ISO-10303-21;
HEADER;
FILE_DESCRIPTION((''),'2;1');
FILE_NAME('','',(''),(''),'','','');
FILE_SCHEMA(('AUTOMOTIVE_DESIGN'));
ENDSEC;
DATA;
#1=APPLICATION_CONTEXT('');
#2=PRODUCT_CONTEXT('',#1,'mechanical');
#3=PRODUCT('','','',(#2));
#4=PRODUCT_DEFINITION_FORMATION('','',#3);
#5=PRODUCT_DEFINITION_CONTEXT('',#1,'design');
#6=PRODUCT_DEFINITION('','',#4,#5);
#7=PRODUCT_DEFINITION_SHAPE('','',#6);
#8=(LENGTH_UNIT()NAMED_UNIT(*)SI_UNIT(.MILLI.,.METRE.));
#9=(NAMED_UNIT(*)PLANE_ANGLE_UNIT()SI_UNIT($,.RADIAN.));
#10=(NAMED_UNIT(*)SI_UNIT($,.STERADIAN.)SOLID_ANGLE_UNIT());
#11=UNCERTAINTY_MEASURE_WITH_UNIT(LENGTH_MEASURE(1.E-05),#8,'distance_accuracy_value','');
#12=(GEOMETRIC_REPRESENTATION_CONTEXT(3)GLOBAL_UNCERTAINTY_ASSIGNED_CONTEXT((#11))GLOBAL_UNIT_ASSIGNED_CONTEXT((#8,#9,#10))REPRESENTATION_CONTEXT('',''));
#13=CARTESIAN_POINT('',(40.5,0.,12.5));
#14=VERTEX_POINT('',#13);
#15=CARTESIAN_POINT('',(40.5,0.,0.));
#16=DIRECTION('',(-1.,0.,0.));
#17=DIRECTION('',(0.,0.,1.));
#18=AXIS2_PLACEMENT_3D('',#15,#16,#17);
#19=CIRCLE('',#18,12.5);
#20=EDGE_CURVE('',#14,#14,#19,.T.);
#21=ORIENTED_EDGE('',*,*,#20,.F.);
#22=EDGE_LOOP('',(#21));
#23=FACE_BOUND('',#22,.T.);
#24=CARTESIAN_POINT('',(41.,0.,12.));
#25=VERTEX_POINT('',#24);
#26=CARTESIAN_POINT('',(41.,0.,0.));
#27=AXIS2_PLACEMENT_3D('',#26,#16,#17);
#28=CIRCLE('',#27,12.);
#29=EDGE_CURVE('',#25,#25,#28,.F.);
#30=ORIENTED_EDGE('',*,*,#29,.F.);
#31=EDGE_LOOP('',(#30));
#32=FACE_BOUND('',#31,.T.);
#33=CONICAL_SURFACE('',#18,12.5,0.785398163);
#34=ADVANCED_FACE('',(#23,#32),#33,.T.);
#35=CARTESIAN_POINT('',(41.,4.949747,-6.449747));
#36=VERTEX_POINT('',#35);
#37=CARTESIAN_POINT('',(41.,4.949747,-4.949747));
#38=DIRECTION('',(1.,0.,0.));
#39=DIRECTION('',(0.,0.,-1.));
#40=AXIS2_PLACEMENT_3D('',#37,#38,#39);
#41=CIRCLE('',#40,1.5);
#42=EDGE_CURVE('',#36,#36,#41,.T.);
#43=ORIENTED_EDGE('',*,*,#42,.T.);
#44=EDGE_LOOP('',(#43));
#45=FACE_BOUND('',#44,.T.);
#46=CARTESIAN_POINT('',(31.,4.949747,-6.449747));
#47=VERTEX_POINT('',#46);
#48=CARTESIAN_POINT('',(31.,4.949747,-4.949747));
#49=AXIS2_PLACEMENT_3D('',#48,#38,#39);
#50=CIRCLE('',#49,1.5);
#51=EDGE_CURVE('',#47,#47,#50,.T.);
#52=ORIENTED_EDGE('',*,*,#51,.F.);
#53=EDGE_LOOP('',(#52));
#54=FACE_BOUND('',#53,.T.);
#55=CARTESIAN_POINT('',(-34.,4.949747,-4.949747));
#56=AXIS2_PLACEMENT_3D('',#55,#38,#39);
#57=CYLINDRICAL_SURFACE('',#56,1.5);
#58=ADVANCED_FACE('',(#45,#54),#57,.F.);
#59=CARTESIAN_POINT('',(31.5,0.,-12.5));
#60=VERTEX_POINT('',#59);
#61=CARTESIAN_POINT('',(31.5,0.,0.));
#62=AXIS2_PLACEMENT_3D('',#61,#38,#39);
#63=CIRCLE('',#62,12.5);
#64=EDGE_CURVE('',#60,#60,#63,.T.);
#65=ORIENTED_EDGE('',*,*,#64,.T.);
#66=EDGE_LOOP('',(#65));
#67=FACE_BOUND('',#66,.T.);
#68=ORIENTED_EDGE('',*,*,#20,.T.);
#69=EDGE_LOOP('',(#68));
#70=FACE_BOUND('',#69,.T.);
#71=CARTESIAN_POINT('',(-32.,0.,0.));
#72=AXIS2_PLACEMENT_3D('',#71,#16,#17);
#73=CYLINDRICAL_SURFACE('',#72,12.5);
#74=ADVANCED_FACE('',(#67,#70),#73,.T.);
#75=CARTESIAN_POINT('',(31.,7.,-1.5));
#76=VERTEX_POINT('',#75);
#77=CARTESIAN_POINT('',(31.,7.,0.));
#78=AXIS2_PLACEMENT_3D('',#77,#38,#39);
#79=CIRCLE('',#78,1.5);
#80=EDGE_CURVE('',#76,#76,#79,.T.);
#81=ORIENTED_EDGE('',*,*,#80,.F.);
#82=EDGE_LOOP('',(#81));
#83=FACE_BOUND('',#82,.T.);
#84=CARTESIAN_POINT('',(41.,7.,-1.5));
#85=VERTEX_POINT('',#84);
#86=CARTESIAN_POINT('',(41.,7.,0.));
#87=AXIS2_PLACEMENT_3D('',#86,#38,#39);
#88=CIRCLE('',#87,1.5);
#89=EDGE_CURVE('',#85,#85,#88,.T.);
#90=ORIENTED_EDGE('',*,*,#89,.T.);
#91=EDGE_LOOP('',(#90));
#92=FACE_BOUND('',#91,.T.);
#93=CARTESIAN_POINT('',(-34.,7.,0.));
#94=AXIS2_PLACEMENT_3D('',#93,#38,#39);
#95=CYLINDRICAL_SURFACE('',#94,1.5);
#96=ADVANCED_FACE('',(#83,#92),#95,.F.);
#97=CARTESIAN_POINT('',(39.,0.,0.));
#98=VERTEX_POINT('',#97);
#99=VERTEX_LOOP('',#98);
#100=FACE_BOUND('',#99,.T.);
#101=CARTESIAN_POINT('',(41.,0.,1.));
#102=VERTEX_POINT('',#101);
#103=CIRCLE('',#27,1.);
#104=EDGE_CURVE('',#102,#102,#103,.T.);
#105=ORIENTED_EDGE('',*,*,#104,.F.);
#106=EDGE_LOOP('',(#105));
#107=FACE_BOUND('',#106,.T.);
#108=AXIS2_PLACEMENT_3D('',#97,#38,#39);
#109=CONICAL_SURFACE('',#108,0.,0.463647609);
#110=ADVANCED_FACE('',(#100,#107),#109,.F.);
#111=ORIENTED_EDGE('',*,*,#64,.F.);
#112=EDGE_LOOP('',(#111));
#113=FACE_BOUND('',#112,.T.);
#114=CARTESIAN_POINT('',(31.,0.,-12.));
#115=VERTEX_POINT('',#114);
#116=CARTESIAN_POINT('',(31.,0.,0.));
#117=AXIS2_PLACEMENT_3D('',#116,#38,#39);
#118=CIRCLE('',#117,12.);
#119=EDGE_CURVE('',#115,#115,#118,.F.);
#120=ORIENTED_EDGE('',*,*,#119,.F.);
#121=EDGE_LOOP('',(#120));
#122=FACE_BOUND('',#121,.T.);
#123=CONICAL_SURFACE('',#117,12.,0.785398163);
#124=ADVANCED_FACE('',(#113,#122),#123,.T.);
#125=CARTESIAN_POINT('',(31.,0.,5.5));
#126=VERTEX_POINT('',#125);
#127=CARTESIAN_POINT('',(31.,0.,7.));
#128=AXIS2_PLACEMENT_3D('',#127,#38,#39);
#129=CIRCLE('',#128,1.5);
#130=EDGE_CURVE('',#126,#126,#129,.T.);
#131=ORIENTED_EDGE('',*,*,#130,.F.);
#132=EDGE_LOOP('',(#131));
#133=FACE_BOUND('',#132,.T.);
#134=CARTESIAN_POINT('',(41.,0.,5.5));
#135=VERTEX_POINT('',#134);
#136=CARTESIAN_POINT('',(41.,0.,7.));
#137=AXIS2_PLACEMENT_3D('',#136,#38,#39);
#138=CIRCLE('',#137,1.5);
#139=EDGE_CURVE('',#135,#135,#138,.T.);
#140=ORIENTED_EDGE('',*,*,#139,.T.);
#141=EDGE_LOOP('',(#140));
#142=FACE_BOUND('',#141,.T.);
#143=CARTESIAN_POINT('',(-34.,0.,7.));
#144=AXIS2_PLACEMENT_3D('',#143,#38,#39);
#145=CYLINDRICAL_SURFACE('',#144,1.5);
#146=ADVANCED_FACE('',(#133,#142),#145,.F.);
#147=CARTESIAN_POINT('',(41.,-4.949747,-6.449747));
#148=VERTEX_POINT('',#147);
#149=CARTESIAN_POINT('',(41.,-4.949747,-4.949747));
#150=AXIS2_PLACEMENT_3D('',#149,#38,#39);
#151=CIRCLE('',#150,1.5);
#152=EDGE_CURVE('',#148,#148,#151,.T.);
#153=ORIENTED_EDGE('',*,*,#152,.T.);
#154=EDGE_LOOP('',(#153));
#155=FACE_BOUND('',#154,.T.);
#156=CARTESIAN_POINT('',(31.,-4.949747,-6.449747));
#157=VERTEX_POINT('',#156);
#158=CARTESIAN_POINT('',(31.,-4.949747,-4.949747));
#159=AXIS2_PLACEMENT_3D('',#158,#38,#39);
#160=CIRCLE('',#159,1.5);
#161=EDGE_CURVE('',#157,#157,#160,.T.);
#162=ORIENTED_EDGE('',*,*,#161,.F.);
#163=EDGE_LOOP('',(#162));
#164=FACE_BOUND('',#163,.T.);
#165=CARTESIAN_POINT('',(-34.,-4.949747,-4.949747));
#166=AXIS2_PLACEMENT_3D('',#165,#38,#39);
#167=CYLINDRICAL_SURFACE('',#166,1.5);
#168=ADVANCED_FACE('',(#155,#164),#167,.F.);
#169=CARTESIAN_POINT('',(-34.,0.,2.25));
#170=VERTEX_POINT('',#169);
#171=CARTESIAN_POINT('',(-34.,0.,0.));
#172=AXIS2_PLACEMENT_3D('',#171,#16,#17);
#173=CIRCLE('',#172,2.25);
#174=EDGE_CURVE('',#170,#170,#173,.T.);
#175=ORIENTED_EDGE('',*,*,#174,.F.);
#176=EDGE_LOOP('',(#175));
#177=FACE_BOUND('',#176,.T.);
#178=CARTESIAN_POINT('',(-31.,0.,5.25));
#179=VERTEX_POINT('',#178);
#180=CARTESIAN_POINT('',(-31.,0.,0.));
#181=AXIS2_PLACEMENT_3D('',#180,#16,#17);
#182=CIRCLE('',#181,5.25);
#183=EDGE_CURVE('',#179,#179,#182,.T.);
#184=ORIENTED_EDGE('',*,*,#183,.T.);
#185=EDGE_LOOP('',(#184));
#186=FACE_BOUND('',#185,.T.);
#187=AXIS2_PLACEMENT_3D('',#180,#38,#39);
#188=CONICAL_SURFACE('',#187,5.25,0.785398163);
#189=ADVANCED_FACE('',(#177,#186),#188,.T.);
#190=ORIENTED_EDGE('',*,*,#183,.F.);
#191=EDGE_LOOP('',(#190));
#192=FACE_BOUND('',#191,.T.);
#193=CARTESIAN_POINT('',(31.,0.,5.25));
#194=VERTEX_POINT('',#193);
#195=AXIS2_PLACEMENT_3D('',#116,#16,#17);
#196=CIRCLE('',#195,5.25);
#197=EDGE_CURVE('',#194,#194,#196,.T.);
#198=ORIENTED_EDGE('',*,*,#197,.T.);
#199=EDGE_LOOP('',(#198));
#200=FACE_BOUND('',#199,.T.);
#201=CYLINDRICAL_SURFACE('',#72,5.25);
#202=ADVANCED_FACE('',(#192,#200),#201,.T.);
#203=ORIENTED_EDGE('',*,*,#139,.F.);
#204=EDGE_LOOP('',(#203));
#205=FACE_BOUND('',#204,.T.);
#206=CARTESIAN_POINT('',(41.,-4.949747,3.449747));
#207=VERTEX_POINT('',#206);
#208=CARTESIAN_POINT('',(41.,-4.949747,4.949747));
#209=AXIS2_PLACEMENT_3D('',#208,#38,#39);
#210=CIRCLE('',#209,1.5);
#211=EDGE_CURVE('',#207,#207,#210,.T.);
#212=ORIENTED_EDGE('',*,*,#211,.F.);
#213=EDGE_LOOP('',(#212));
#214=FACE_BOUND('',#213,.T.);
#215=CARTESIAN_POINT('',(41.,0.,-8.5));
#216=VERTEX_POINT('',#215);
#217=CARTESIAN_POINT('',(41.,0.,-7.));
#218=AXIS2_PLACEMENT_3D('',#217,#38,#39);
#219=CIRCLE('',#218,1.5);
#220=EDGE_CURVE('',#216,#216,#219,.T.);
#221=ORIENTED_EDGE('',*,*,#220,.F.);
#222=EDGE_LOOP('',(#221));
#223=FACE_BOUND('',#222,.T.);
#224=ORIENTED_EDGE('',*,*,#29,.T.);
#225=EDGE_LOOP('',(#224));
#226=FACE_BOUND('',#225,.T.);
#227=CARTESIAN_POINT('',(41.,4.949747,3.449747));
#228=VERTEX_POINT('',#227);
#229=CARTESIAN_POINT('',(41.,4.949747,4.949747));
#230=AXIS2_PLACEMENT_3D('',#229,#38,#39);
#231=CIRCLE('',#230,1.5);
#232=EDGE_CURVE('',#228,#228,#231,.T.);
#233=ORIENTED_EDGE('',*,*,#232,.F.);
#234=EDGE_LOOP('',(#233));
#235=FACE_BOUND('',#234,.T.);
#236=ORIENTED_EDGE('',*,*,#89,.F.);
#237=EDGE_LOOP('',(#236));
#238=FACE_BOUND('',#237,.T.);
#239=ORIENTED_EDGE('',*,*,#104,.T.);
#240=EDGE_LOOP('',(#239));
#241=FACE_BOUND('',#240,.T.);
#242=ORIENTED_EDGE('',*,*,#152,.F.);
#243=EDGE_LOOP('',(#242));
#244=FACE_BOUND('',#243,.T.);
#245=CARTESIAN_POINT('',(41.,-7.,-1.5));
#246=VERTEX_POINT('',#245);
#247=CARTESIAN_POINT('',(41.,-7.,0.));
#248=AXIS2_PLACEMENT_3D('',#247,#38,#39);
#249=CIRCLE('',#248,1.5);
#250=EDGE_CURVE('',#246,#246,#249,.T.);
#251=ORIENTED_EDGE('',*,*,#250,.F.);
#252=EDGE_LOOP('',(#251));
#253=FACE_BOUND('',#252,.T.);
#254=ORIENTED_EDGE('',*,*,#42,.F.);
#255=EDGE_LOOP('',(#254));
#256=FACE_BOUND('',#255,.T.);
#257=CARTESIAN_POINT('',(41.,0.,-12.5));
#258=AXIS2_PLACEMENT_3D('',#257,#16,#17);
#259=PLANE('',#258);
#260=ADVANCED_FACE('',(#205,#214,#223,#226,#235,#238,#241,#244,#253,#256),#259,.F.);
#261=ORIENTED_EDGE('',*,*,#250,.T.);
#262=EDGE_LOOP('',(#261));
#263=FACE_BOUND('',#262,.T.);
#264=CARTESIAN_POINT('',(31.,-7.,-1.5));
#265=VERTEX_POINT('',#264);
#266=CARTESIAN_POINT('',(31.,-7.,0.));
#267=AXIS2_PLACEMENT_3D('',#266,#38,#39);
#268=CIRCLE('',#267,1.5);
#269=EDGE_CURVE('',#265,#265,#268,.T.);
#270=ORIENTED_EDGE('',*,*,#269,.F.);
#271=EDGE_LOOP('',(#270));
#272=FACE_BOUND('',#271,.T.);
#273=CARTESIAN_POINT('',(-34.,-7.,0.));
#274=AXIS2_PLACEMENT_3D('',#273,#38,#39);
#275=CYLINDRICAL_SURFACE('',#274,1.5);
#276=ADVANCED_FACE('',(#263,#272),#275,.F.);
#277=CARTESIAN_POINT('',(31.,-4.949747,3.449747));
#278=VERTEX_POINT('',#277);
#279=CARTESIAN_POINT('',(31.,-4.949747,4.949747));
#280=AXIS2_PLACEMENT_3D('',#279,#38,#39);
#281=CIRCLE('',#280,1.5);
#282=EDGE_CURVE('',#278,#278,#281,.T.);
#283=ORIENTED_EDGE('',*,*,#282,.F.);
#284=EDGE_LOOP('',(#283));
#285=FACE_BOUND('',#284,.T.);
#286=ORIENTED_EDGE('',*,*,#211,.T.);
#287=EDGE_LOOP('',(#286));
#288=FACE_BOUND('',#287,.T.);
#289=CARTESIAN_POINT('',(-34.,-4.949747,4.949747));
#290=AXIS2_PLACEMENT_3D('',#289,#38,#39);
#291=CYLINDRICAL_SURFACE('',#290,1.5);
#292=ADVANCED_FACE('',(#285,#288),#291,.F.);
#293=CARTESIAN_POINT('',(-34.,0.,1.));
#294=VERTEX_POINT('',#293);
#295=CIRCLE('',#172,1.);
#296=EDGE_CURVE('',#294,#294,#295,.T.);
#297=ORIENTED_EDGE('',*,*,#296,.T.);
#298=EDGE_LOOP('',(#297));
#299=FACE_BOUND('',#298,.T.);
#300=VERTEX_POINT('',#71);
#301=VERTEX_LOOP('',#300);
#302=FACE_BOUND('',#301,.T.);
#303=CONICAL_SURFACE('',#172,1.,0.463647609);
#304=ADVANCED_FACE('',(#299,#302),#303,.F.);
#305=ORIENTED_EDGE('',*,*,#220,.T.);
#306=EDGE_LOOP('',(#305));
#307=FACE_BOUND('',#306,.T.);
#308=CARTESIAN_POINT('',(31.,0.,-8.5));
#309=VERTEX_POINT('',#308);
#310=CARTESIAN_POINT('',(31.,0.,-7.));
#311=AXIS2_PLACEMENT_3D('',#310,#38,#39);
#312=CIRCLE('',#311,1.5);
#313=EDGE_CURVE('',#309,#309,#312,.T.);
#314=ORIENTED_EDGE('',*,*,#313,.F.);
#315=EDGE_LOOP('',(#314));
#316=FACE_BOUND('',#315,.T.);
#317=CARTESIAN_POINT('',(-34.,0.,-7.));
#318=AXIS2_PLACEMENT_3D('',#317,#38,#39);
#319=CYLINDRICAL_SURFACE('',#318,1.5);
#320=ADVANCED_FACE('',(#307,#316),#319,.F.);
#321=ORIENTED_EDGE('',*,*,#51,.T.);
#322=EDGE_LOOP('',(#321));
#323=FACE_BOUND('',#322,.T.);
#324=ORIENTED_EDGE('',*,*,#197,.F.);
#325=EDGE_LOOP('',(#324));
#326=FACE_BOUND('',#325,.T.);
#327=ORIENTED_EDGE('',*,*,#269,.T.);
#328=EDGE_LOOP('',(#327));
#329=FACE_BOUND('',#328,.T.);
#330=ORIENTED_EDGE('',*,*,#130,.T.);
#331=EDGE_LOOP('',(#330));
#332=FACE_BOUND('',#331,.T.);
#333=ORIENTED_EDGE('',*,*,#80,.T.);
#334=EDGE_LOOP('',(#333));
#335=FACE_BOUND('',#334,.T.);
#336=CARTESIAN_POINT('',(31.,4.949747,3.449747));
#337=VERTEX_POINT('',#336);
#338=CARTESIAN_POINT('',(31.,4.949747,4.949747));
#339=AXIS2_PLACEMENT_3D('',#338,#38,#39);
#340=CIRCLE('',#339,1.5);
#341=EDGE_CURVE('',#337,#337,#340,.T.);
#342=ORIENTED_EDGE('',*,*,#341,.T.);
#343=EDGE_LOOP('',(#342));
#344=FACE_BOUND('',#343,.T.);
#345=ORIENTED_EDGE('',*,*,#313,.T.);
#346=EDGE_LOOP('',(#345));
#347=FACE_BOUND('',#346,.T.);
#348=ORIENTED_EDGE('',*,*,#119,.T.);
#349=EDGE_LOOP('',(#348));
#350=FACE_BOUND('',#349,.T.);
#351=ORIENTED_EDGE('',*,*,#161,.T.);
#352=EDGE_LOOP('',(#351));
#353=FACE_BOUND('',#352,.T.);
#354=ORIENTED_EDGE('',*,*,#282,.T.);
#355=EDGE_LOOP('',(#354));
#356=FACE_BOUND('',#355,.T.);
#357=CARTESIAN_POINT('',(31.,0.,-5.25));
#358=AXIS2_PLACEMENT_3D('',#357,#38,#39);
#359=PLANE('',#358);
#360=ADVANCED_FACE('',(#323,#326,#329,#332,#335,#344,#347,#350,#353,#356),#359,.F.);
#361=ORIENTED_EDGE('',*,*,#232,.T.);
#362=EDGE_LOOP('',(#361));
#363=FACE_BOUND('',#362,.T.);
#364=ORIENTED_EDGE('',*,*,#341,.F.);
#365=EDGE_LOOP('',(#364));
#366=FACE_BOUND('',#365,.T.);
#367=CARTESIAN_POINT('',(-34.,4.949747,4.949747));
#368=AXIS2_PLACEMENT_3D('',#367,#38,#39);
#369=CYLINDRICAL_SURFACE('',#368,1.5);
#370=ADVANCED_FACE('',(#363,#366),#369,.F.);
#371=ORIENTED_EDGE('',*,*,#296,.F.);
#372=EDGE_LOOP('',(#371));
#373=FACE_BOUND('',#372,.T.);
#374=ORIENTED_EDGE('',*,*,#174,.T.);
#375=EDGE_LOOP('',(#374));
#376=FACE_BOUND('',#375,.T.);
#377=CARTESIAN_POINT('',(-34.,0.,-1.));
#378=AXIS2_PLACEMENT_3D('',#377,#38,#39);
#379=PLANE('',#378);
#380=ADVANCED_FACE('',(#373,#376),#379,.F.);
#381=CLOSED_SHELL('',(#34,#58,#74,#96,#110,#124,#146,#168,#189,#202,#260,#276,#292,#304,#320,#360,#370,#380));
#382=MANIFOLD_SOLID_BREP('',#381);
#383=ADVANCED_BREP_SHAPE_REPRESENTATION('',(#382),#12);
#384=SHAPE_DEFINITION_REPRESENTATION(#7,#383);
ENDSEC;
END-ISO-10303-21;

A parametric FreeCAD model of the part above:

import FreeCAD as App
import Part
import Sketcher
Q = App.Units.Quantity


def edges_at(feature, points):
    """Names of the edges that pass closest to the given points."""
    edges = feature.Shape.Edges
    near = lambda p: min(range(len(edges)), key=lambda i: edges[i].distToShape(Part.Vertex(*p))[0])
    return sorted({f"Edge{near(p) + 1}" for p in points})


def add_polygon(sketch, points):
    """Adds a closed chain of lines whose ends are joined by coincident constraints."""
    first, n = sketch.GeometryCount, len(points)
    for a, b in zip(points, points[1:] + points[:1]):
        sketch.addGeometry(Part.LineSegment(App.Vector(*a, 0), App.Vector(*b, 0)), False)
    for i in range(n):
        sketch.addConstraint(Sketcher.Constraint("Coincident", first + i, 2, first + (i + 1) % n, 1))

doc = App.newDocument("Part")
body = doc.addObject("PartDesign::Body", "Body")

sketch1 = doc.addObject("Sketcher::SketchObject", "Sketch")
body.addObject(sketch1)
sketch1.AttachmentSupport = (doc.XZ_Plane, [""])
sketch1.MapMode = "FlatFace"
add_polygon(sketch1, [(-34, -2.2), (-34, -1), (-32, 0), (39, 0), (41, -1), (41, -12.5), (31, -12.5), (31, -5.2), (-31, -5.2)])
sketch1.addConstraint([
    Sketcher.Constraint("Vertical", 0),
    Sketcher.Constraint("Horizontal", 2),
    Sketcher.Constraint("Vertical", 4),
    Sketcher.Constraint("Horizontal", 5),
    Sketcher.Constraint("Vertical", 6),
    Sketcher.Constraint("Horizontal", 7),
    Sketcher.Constraint("PointOnObject", 1, 2, -1),
    Sketcher.Constraint("Horizontal", 0, 2, 3, 2),
    Sketcher.Constraint("Equal", 1, 3),
    Sketcher.Constraint("DistanceX", 2, 1, 2, 2, 71.0),
    Sketcher.Constraint("DistanceX", 5, 2, 5, 1, 10.0),
    Sketcher.Constraint("DistanceX", 7, 2, 7, 1, 62.0),
    Sketcher.Constraint("Angle", 8, Q("135 deg")),
    Sketcher.Constraint("DistanceY", 4, 2, 4, 1, 11.5),
    Sketcher.Constraint("DistanceX", 0, 2, -1, 1, 34.0),
    Sketcher.Constraint("DistanceY", 0, 2, -1, 1, 1.0),
    Sketcher.Constraint("DistanceX", 1, 2, -1, 1, 32.0),
    Sketcher.Constraint("DistanceY", 0, 1, 0, 2, 1.25),
])
revolution = doc.addObject("PartDesign::Revolution", "Revolution")
body.addObject(revolution)
revolution.Profile = sketch1
revolution.ReferenceAxis = (sketch1, ["H_Axis"])
revolution.Angle = 360
doc.recompute()

chamfer = doc.addObject("PartDesign::Chamfer", "Chamfer")
body.addObject(chamfer)
chamfer.Base = (revolution, edges_at(revolution, [(41, 0, 12.5), (31, 0, 12.5)]))
chamfer.Size = 0.5

sketch2 = doc.addObject("Sketcher::SketchObject", "Sketch001")
body.addObject(sketch2)
sketch2.AttachmentSupport = (doc.YZ_Plane, [""])
sketch2.MapMode = "FlatFace"
sketch2.AttachmentOffset = App.Placement(App.Vector(0, 0, 41), App.Rotation())
sketch2.addGeometry([
    Part.Circle(App.Vector(7, 0, 0), App.Vector(0, 0, 1), 1.5),
    Part.Circle(App.Vector(4.9, -4.9, 0), App.Vector(0, 0, 1), 1.5),
    Part.Circle(App.Vector(0, -7, 0), App.Vector(0, 0, 1), 1.5),
    Part.Circle(App.Vector(-4.9, -4.9, 0), App.Vector(0, 0, 1), 1.5),
    Part.Circle(App.Vector(-7, 0, 0), App.Vector(0, 0, 1), 1.5),
    Part.Circle(App.Vector(-4.9, 4.9, 0), App.Vector(0, 0, 1), 1.5),
    Part.Circle(App.Vector(0, 7, 0), App.Vector(0, 0, 1), 1.5),
    Part.Circle(App.Vector(4.9, 4.9, 0), App.Vector(0, 0, 1), 1.5),
], False)
sketch2.addConstraint([
    Sketcher.Constraint("Equal", 0, 1),
    Sketcher.Constraint("Equal", 1, 2),
    Sketcher.Constraint("Equal", 2, 3),
    Sketcher.Constraint("Equal", 3, 4),
    Sketcher.Constraint("Equal", 4, 5),
    Sketcher.Constraint("Equal", 5, 6),
    Sketcher.Constraint("Equal", 6, 7),
    Sketcher.Constraint("Symmetric", 0, 3, 4, 3, -1, 1),
    Sketcher.Constraint("Symmetric", 1, 3, 5, 3, -1, 1),
    Sketcher.Constraint("Symmetric", 2, 3, 6, 3, -1, 1),
    Sketcher.Constraint("Symmetric", 3, 3, 7, 3, -1, 1),
    Sketcher.Constraint("Symmetric", 1, 3, 3, 3, -2),
    Sketcher.Constraint("PointOnObject", 0, 3, -1),
    Sketcher.Constraint("PointOnObject", 2, 3, -2),
    Sketcher.Constraint("Diameter", 0, 3.0),
    Sketcher.Constraint("DistanceX", -1, 1, 0, 3, 7.0),
    Sketcher.Constraint("DistanceY", 2, 3, -1, 1, 7.0),
    Sketcher.Constraint("DistanceX", -1, 1, 1, 3, 4.949747),
    Sketcher.Constraint("DistanceY", 1, 3, -1, 1, 4.949747),
])
pocket1 = doc.addObject("PartDesign::Pocket", "Pocket")
body.addObject(pocket1)
pocket1.Profile = sketch2
pocket1.Type = "ThroughAll"

doc.recompute()
